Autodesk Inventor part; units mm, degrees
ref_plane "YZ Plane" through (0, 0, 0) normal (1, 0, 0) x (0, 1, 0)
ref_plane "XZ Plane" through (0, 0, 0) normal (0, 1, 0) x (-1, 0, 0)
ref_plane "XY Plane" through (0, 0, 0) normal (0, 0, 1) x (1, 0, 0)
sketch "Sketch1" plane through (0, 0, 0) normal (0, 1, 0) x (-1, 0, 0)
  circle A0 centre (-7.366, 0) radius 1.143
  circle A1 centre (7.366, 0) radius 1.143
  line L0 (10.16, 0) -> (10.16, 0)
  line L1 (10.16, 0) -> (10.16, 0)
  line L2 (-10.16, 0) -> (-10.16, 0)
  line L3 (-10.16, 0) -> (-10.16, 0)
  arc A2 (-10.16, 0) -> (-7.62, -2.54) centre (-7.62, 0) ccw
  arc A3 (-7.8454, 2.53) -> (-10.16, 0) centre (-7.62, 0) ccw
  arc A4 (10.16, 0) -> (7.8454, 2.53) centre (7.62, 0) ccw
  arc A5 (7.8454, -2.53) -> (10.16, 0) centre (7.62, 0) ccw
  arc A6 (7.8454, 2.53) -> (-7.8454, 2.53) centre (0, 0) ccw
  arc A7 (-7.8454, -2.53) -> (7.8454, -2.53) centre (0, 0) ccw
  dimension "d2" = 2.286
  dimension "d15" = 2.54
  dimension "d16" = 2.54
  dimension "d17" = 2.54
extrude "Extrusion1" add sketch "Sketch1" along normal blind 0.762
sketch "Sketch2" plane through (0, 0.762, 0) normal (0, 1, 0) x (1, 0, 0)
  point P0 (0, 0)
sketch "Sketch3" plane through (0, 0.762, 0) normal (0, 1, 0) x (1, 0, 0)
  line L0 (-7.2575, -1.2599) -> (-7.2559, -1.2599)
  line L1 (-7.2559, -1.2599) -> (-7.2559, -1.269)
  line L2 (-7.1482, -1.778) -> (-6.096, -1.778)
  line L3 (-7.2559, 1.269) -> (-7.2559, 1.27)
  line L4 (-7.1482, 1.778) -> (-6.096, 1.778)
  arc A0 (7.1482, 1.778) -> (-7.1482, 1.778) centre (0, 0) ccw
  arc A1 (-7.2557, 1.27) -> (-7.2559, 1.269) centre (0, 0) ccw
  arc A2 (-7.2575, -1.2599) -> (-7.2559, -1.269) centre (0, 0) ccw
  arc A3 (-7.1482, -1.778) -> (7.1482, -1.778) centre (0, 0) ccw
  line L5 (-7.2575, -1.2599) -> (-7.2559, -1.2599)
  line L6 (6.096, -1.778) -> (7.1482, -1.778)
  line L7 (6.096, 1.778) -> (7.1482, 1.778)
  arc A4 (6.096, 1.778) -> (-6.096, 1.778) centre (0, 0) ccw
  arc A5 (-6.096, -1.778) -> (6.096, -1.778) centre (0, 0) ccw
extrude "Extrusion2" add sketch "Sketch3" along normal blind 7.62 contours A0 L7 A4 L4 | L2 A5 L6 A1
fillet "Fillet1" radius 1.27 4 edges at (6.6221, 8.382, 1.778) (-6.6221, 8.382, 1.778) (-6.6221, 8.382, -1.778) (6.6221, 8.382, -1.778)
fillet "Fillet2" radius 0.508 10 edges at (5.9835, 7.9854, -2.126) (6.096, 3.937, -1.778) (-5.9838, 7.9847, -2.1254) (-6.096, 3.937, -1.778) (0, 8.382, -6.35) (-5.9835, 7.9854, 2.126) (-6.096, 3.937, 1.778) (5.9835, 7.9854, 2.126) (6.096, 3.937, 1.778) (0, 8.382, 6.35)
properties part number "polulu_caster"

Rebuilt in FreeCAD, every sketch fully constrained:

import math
import FreeCAD as App
import Part
import Sketcher

V = App.Vector
Q = App.Units.Quantity


def edges_at(feature, points):
    """Names of the edges that pass closest to the given points."""
    edges = feature.Shape.Edges
    near = lambda p: min(range(len(edges)), key=lambda i: edges[i].distToShape(Part.Vertex(*p))[0])
    return sorted({f"Edge{near(p) + 1}" for p in points})

doc = App.newDocument("Part")
body = doc.addObject("PartDesign::Body", "Body")

# Sketch on XZ plane
sketch1 = body.newObject("Sketcher::SketchObject", "Sketch")
sketch1.AttachmentSupport = (doc.getObject("XZ_Plane"), [""])
sketch1.MapMode = "FlatFace"
sketch1.addGeometry([
    Part.ArcOfCircle(Part.Circle(V(7.6, 0, 0), V(0, 0, 1), 2.5), math.radians(0), math.radians(85)),  # 0
    Part.ArcOfCircle(Part.Circle(V(7.6, 0, 0), V(0, 0, 1), 2.5), math.radians(-85), math.radians(0)),  # 1
    Part.ArcOfCircle(Part.Circle(V(0, 0, 0), V(0, 0, 1), 8.2), math.radians(-162), math.radians(-18)),  # 2
    Part.ArcOfCircle(Part.Circle(V(-7.6, 0, 0), V(0, 0, 1), 2.5), math.radians(180), math.radians(265)),  # 3
    Part.ArcOfCircle(Part.Circle(V(-7.6, 0, 0), V(0, 0, 1), 2.5), math.radians(95), math.radians(180)),  # 4
    Part.ArcOfCircle(Part.Circle(V(0, 0, 0), V(0, 0, 1), 8.2), math.radians(18), math.radians(162)),  # 5
    Part.Circle(V(7.4, 0, 0), V(0, 0, 1), 1.1),  # 6
    Part.Circle(V(-7.4, 0, 0), V(0, 0, 1), 1.1),  # 7
], False)
sketch1.addConstraint([
    Sketcher.Constraint("Tangent", 0, 1, 1, 2),
    Sketcher.Constraint("Coincident", 1, 1, 2, 2),
    Sketcher.Constraint("Coincident", 2, 1, 3, 2),
    Sketcher.Constraint("Tangent", 3, 1, 4, 2),
    Sketcher.Constraint("Coincident", 4, 1, 5, 2),
    Sketcher.Constraint("Coincident", 5, 1, 0, 2),
    Sketcher.Constraint("Coincident", 2, 3, -1, 1),
    Sketcher.Constraint("Coincident", 5, 3, -1, 1),
    Sketcher.Constraint("Equal", 0, 1),
    Sketcher.Constraint("Equal", 1, 3),
    Sketcher.Constraint("Equal", 3, 4),
    Sketcher.Constraint("Equal", 2, 5),
    Sketcher.Constraint("Equal", 6, 7),
    Sketcher.Constraint("Symmetric", 0, 3, 3, 3, -1, 1),
    Sketcher.Constraint("Symmetric", 6, 3, 7, 3, -1, 1),
    Sketcher.Constraint("PointOnObject", 0, 3, -1),
    Sketcher.Constraint("PointOnObject", 6, 3, -1),
    Sketcher.Constraint("PointOnObject", 0, 1, -1),
    Sketcher.Constraint("PointOnObject", 3, 1, -1),
    Sketcher.Constraint("Radius", 0, Q("0.1 in")),
    Sketcher.Constraint("Diameter", 6, Q("0.09 in")),
    Sketcher.Constraint("DistanceX", -1, 1, 0, 3, Q("0.3 in")),
    Sketcher.Constraint("DistanceX", -1, 1, 6, 3, Q("0.29 in")),
    Sketcher.Constraint("Radius", 2, 8.2433),
])
pad1 = body.newObject("PartDesign::Pad", "Pad")
pad1.Profile = sketch1
pad1.Length = Q("0.03 in")
pad1.Reversed = True

# Sketch on XZ plane
sketch2 = body.newObject("Sketcher::SketchObject", "Sketch001")
sketch2.AttachmentSupport = (doc.getObject("XZ_Plane"), [""])
sketch2.MapMode = "FlatFace"
sketch2.AttachmentOffset = App.Placement(V(0, 0, -0.03 * 25.4), App.Rotation())
sketch2.addGeometry([
    Part.ArcOfCircle(Part.Circle(V(0, 0, 0), V(0, 0, 1), 7.4), math.radians(-166), math.radians(-14)),  # 0
    Part.LineSegment(V(-7.1, -1.8, 0), V(-6.1, -1.8, 0)),  # 1
    Part.ArcOfCircle(Part.Circle(V(0, 0, 0), V(0, 0, 1), 6.3), math.radians(-164), math.radians(-16)),  # 2
    Part.LineSegment(V(6.1, -1.8, 0), V(7.1, -1.8, 0)),  # 3
    Part.LineSegment(V(-6.1, 1.8, 0), V(-7.1, 1.8, 0)),  # 4
    Part.ArcOfCircle(Part.Circle(V(0, 0, 0), V(0, 0, 1), 7.4), math.radians(14), math.radians(166)),  # 5
    Part.LineSegment(V(7.1, 1.8, 0), V(6.1, 1.8, 0)),  # 6
    Part.ArcOfCircle(Part.Circle(V(0, 0, 0), V(0, 0, 1), 6.3), math.radians(16), math.radians(164)),  # 7
], False)
sketch2.addConstraint([
    Sketcher.Constraint("Coincident", 0, 1, 1, 1),
    Sketcher.Constraint("Coincident", 1, 2, 2, 1),
    Sketcher.Constraint("Coincident", 2, 2, 3, 1),
    Sketcher.Constraint("Coincident", 3, 2, 0, 2),
    Sketcher.Constraint("Coincident", 4, 2, 5, 2),
    Sketcher.Constraint("Coincident", 5, 1, 6, 1),
    Sketcher.Constraint("Coincident", 6, 2, 7, 1),
    Sketcher.Constraint("Coincident", 7, 2, 4, 1),
    Sketcher.Constraint("Horizontal", 1),
    Sketcher.Constraint("Horizontal", 3),
    Sketcher.Constraint("Horizontal", 4),
    Sketcher.Constraint("Horizontal", 6),
    Sketcher.Constraint("Coincident", 0, 3, -1, 1),
    Sketcher.Constraint("Coincident", 2, 3, -1, 1),
    Sketcher.Constraint("Coincident", 5, 3, -1, 1),
    Sketcher.Constraint("Coincident", 7, 3, -1, 1),
    Sketcher.Constraint("Equal", 0, 5),
    Sketcher.Constraint("Equal", 2, 7),
    Sketcher.Constraint("Horizontal", 1, 2, 2, 2),
    Sketcher.Constraint("Horizontal", 4, 2, 5, 1),
    Sketcher.Constraint("Vertical", 0, 1, 4, 2),
    Sketcher.Constraint("Radius", 0, Q("0.29 in")),
    Sketcher.Constraint("Radius", 2, Q("0.25 in")),
    Sketcher.Constraint("DistanceY", 0, 1, -1, 1, Q("0.07 in")),
])
pad2 = body.newObject("PartDesign::Pad", "Pad001")
pad2.Profile = sketch2
pad2.Length = Q("0.3 in")
pad2.Reversed = True
doc.recompute()

fillet = body.newObject("PartDesign::Fillet", "Fillet")
fillet.Base = (pad2, edges_at(pad2, [
    (6.622, 8.382, 1.778),
    (-6.622, 8.382, 1.778),
    (-6.622, 8.382, -1.778),
    (6.622, 8.382, -1.778),
]))
fillet.Radius = Q("0.05 in")
doc.recompute()

fillet2 = body.newObject("PartDesign::Fillet", "Fillet001")
fillet2.Base = (fillet, edges_at(fillet, [
    (5.984, 7.985, -2.126),
    (6.096, 3.937, -1.778),
    (-5.984, 7.985, -2.125),
    (-6.096, 3.937, -1.778),
    (0, 8.382, -6.35),
    (-5.984, 7.985, 2.126),
    (-6.096, 3.937, 1.778),
    (5.984, 7.985, 2.126),
    (6.096, 3.937, 1.778),
    (0, 8.382, 6.35),
]))
fillet2.Radius = Q("0.02 in")

doc.recompute()
